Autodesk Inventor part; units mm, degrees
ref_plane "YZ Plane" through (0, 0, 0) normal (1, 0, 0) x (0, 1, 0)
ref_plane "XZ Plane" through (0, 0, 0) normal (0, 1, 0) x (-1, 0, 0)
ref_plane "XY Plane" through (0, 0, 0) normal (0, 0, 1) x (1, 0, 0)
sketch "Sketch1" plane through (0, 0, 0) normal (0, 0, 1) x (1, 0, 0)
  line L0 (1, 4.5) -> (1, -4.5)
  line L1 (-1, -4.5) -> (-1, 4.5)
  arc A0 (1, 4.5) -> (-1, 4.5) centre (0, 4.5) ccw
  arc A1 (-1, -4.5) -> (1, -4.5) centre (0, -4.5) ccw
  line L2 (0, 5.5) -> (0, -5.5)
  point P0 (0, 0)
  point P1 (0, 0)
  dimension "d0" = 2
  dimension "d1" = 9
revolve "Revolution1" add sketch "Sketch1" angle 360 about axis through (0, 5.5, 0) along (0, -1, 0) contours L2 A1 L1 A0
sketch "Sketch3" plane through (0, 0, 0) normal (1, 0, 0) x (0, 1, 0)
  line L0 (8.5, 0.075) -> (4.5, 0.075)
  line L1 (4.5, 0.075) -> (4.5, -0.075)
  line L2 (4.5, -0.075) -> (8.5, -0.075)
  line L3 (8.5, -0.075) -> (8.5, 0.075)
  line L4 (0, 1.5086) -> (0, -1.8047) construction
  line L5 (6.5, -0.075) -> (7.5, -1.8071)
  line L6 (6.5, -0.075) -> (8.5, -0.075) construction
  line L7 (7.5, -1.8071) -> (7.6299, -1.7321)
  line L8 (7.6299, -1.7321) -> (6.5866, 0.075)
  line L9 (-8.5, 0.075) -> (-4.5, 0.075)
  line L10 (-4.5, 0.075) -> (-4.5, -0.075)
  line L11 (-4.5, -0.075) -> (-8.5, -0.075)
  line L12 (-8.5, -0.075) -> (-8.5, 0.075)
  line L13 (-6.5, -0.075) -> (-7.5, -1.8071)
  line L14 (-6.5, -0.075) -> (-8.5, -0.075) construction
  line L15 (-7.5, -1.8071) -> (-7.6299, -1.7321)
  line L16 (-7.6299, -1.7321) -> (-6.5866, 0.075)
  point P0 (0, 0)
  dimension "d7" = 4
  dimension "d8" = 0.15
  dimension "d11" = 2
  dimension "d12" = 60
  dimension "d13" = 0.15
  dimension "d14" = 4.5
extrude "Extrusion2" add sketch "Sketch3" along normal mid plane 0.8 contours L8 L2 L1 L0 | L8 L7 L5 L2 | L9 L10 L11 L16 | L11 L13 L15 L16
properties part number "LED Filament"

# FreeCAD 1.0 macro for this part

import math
import FreeCAD as App
import Part
import Sketcher
from FreeCAD import Vector
Q = App.Units.Quantity

doc = App.newDocument("Part")
body = doc.addObject("PartDesign::Body", "Body")

sketch1 = body.newObject("Sketcher::SketchObject", "Sketch")
sketch1.AttachmentSupport = (doc.getObject("XY_Plane"), [""])
sketch1.MapMode = "FlatFace"
sketch1.addGeometry([
    Part.LineSegment(Vector(0, -5.5, 0), Vector(0, 5.5, 0)),
    Part.ArcOfCircle(Part.Circle(Vector(0, 4.5, 0), Vector(0, 0, 1), 1), math.radians(90), math.radians(180)),
    Part.LineSegment(Vector(-1, 4.5, 0), Vector(-1, -4.5, 0)),
    Part.ArcOfCircle(Part.Circle(Vector(0, -4.5, 0), Vector(0, 0, 1), 1), math.radians(180), math.radians(270)),
], False)
sketch1.addConstraint([
    Sketcher.Constraint("Coincident", 0, 2, 1, 1),
    Sketcher.Constraint("Tangent", 1, 2, 2, 1),
    Sketcher.Constraint("Tangent", 2, 2, 3, 1),
    Sketcher.Constraint("Coincident", 3, 2, 0, 1),
    Sketcher.Constraint("Vertical", 0),
    Sketcher.Constraint("Vertical", 2),
    Sketcher.Constraint("Equal", 1, 3),
    Sketcher.Constraint("Symmetric", 1, 3, 3, 3, -1, 1),
    Sketcher.Constraint("PointOnObject", 0, 2, -2),
    Sketcher.Constraint("Radius", 1, Q("1 mm")),
    Sketcher.Constraint("DistanceY", 2, 2, 2, 1, Q("9 mm")),
])
revolution = body.newObject("PartDesign::Revolution", "Revolution")
revolution.Profile = sketch1
revolution.ReferenceAxis = (sketch1, ["V_Axis"])
revolution.Angle = 360

sketch2 = body.newObject("Sketcher::SketchObject", "Sketch001")
sketch2.AttachmentSupport = (doc.getObject("YZ_Plane"), [""])
sketch2.MapMode = "FlatFace"
sketch2.addGeometry([
    Part.LineSegment(Vector(6.59, 0.07, 0), Vector(4.5, 0.07, 0)),
    Part.LineSegment(Vector(4.5, 0.07, 0), Vector(4.5, -0.07, 0)),
    Part.LineSegment(Vector(4.5, -0.07, 0), Vector(6.5, -0.07, 0)),
    Part.LineSegment(Vector(6.5, -0.07, 0), Vector(7.5, -1.81, 0)),
    Part.LineSegment(Vector(7.5, -1.81, 0), Vector(7.63, -1.73, 0)),
    Part.LineSegment(Vector(7.63, -1.73, 0), Vector(6.59, 0.07, 0)),
    Part.LineSegment(Vector(-4.5, 0.07, 0), Vector(-6.59, 0.07, 0)),
    Part.LineSegment(Vector(-6.59, 0.07, 0), Vector(-7.63, -1.73, 0)),
    Part.LineSegment(Vector(-7.63, -1.73, 0), Vector(-7.5, -1.81, 0)),
    Part.LineSegment(Vector(-7.5, -1.81, 0), Vector(-6.5, -0.07, 0)),
    Part.LineSegment(Vector(-6.5, -0.07, 0), Vector(-4.5, -0.07, 0)),
    Part.LineSegment(Vector(-4.5, -0.07, 0), Vector(-4.5, 0.07, 0)),
], False)
sketch2.addConstraint([
    Sketcher.Constraint("Coincident", 0, 2, 1, 1),
    Sketcher.Constraint("Coincident", 1, 2, 2, 1),
    Sketcher.Constraint("Coincident", 2, 2, 3, 1),
    Sketcher.Constraint("Coincident", 3, 2, 4, 1),
    Sketcher.Constraint("Coincident", 4, 2, 5, 1),
    Sketcher.Constraint("Coincident", 5, 2, 0, 1),
    Sketcher.Constraint("Coincident", 6, 2, 7, 1),
    Sketcher.Constraint("Coincident", 7, 2, 8, 1),
    Sketcher.Constraint("Coincident", 8, 2, 9, 1),
    Sketcher.Constraint("Coincident", 9, 2, 10, 1),
    Sketcher.Constraint("Coincident", 10, 2, 11, 1),
    Sketcher.Constraint("Coincident", 11, 2, 6, 1),
    Sketcher.Constraint("Horizontal", 0),
    Sketcher.Constraint("Vertical", 1),
    Sketcher.Constraint("Horizontal", 2),
    Sketcher.Constraint("Horizontal", 6),
    Sketcher.Constraint("Horizontal", 10),
    Sketcher.Constraint("Vertical", 11),
    Sketcher.Constraint("Symmetric", 0, 2, 10, 2, -1, 1),
    Sketcher.Constraint("Symmetric", 5, 2, 6, 2, -2),
    Sketcher.Constraint("Symmetric", 4, 2, 7, 2, -2),
    Sketcher.Constraint("Symmetric", 3, 2, 8, 2, -2),
    Sketcher.Constraint("Symmetric", 2, 2, 9, 2, -2),
    Sketcher.Constraint("Perpendicular", 3, 4),
    Sketcher.Constraint("Perpendicular", 4, 5),
    Sketcher.Constraint("DistanceX", 2, 1, 2, 2, Q("2 mm")),
    Sketcher.Constraint("Distance", 3, Q("2 mm")),
    Sketcher.Constraint("DistanceY", 1, 2, 1, 1, Q("0.15 mm")),
    Sketcher.Constraint("DistanceX", -1, 1, 0, 2, Q("4.5 mm")),
    Sketcher.Constraint("Distance", 4, Q("0.15 mm")),
    Sketcher.Constraint("Angle", 3, Q("-60.0007 deg")),
])
pad1 = body.newObject("PartDesign::Pad", "Pad")
pad1.Profile = sketch2
pad1.Length = 0.8
pad1.Midplane = True

doc.recompute()
